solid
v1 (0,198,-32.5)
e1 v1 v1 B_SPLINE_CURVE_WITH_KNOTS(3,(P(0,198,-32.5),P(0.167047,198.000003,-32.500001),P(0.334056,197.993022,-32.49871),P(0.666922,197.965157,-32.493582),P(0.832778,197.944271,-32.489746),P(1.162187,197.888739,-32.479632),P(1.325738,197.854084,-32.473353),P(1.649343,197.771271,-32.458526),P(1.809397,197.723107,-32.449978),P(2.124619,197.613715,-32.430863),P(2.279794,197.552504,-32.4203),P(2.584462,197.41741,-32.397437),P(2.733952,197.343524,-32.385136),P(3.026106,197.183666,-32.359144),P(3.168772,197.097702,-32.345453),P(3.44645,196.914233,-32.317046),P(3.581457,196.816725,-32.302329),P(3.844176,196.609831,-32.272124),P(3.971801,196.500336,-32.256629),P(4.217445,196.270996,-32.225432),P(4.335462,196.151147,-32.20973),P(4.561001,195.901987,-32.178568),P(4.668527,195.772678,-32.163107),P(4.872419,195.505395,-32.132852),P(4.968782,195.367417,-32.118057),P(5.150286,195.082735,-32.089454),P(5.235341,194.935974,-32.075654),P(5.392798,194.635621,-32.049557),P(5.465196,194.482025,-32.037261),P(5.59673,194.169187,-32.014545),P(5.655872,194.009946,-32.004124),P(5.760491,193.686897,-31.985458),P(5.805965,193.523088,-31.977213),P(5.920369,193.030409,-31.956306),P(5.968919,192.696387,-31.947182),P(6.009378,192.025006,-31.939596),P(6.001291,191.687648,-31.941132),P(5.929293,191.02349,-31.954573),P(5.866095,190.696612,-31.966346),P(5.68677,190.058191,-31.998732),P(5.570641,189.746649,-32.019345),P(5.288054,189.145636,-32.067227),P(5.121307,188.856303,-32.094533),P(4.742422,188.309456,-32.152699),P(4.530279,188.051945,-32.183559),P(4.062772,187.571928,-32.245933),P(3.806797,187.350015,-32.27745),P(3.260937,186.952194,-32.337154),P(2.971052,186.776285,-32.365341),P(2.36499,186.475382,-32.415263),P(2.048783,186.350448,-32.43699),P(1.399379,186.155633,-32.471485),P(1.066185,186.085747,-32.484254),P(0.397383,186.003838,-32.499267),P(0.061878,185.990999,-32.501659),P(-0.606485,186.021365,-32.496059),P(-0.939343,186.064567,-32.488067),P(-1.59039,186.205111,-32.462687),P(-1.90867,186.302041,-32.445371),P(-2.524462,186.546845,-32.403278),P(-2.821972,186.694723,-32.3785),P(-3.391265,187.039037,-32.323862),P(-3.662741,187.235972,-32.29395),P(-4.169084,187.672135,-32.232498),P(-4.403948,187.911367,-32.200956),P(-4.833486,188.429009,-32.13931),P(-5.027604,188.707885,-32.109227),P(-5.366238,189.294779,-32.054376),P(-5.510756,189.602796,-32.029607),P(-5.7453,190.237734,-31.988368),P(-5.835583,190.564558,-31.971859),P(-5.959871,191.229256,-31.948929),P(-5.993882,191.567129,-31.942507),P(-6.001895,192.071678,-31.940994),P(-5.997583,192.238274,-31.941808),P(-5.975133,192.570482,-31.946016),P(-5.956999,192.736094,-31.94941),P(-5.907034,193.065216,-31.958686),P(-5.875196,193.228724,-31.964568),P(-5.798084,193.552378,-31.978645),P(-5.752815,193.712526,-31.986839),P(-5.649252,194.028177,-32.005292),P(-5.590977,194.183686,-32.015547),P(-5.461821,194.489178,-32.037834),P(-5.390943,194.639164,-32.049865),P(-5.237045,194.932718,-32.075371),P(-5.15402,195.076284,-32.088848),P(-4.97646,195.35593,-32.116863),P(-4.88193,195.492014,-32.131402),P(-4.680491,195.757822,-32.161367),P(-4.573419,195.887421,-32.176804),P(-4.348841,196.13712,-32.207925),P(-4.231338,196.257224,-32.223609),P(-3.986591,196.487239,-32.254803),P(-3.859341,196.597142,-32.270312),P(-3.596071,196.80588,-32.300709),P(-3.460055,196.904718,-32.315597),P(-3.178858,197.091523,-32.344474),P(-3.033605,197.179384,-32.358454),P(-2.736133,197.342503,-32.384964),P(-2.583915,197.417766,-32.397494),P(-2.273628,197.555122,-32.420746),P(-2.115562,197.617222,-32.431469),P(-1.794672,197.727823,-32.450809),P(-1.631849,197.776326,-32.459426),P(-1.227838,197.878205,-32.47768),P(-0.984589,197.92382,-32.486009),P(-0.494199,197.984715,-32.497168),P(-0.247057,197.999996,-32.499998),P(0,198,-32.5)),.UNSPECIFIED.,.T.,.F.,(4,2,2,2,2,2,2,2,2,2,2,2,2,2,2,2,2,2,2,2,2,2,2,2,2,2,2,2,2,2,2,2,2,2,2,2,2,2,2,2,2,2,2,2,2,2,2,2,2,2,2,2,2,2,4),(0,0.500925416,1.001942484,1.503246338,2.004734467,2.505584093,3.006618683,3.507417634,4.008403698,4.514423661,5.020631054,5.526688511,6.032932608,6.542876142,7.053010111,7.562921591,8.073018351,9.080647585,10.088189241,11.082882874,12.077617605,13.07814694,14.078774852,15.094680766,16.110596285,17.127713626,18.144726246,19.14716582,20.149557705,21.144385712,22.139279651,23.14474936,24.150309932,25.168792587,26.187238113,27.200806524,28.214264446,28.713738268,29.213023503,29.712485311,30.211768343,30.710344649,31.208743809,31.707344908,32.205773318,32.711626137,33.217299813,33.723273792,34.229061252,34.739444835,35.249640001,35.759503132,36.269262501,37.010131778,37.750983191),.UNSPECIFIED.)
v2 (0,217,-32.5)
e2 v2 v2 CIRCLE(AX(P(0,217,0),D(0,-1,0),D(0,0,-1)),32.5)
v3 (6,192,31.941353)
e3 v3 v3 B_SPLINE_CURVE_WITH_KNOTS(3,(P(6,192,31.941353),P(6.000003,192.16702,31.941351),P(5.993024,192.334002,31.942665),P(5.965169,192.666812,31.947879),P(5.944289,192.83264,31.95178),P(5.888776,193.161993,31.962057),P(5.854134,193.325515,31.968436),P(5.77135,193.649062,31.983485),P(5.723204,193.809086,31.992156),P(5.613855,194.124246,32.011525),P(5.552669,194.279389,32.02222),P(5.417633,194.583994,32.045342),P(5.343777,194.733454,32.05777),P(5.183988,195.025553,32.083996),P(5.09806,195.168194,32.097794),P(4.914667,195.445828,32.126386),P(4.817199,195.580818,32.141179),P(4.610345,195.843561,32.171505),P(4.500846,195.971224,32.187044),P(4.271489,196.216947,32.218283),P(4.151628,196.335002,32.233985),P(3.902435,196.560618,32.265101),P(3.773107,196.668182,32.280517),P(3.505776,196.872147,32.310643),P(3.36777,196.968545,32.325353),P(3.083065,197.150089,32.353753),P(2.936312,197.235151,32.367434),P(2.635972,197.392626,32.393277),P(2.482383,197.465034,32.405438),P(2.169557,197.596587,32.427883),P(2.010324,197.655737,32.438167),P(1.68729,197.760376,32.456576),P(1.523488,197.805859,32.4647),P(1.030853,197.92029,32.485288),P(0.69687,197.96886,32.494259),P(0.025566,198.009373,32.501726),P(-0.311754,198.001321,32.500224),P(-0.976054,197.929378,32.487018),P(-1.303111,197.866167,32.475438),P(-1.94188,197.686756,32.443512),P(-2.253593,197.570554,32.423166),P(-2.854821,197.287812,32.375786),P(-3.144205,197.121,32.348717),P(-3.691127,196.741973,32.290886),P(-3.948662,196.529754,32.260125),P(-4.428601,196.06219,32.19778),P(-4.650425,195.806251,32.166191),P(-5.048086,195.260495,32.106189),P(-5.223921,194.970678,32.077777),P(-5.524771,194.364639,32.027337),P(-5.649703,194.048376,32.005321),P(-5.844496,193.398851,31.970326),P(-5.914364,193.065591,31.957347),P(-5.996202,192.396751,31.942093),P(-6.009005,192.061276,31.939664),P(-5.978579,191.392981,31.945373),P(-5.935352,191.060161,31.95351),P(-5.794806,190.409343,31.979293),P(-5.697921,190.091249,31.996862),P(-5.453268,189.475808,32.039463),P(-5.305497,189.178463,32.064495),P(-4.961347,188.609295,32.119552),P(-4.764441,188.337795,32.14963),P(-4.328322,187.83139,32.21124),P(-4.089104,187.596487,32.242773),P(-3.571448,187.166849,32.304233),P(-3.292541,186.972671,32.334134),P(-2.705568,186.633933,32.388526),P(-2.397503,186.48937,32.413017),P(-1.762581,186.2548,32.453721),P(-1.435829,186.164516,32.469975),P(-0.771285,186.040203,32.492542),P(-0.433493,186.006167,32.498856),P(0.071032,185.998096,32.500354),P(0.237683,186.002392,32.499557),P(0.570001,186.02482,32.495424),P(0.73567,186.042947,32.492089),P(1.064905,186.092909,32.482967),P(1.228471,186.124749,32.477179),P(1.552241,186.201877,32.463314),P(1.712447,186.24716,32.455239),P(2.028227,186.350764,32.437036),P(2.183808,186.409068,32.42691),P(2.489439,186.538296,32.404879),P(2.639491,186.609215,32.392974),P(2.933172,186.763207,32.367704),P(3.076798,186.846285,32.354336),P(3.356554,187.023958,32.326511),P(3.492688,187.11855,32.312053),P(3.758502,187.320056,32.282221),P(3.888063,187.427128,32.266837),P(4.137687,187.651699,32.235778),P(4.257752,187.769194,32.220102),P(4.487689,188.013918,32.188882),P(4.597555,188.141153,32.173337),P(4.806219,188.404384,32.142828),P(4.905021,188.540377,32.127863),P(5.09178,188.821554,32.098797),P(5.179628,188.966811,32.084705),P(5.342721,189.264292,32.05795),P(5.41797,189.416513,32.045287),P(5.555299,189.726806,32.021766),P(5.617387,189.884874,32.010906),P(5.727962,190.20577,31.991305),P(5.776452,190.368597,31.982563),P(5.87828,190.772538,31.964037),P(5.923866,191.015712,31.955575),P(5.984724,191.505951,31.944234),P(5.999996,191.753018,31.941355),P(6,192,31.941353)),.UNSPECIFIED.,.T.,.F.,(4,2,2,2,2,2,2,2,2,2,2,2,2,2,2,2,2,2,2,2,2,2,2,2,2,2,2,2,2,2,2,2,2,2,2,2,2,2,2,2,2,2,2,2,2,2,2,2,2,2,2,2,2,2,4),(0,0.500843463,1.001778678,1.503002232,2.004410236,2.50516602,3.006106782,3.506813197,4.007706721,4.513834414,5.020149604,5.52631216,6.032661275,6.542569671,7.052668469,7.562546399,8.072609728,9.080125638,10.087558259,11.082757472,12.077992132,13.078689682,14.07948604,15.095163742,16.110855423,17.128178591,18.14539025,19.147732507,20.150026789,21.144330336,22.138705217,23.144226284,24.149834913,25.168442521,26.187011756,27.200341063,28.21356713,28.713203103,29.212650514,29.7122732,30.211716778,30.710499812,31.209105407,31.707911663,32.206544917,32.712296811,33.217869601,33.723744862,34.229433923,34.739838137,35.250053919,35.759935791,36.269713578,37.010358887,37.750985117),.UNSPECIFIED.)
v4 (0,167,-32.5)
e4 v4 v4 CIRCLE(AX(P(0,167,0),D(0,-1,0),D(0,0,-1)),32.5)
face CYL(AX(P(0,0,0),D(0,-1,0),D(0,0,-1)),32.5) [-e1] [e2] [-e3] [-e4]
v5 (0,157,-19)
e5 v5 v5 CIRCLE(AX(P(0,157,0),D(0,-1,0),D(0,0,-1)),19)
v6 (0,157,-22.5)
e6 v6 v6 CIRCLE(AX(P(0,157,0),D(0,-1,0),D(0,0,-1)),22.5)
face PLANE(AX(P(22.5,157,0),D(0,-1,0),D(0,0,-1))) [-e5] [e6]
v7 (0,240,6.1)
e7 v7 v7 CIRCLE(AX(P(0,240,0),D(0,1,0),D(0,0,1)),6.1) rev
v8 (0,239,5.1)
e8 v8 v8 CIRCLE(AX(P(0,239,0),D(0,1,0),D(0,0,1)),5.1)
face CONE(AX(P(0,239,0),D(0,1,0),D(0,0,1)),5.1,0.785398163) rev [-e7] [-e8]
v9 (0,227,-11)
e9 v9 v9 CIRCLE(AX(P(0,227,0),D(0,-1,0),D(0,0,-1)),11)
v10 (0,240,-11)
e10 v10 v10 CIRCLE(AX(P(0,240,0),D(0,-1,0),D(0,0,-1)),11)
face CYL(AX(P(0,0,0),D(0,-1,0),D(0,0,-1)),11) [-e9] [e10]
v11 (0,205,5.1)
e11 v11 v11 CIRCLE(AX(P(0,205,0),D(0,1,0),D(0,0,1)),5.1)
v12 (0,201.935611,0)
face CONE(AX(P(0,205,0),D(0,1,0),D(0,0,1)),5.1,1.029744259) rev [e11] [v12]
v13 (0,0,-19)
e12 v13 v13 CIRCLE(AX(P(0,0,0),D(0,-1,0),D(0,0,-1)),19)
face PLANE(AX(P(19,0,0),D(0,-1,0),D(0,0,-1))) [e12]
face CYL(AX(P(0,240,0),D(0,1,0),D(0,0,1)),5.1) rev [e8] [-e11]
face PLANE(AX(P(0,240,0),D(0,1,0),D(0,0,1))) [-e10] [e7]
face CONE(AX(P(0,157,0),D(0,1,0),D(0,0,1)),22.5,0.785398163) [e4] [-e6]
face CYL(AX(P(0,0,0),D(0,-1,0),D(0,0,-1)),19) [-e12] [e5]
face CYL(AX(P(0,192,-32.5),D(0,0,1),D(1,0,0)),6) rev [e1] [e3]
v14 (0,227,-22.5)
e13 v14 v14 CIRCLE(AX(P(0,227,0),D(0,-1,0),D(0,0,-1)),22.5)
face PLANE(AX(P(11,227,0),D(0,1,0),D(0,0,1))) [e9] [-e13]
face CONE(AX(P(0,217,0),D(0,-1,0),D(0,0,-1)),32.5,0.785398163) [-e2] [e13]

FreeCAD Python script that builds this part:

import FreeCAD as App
import Part
import Sketcher
Q = App.Units.Quantity


def edges_at(feature, points):
    """Names of the edges that pass closest to the given points."""
    edges = feature.Shape.Edges
    near = lambda p: min(range(len(edges)), key=lambda i: edges[i].distToShape(Part.Vertex(*p))[0])
    return sorted({f"Edge{near(p) + 1}" for p in points})


def add_polygon(sketch, points):
    """Adds a closed chain of lines whose ends are joined by coincident constraints."""
    first, n = sketch.GeometryCount, len(points)
    for a, b in zip(points, points[1:] + points[:1]):
        sketch.addGeometry(Part.LineSegment(App.Vector(*a, 0), App.Vector(*b, 0)), False)
    for i in range(n):
        sketch.addConstraint(Sketcher.Constraint("Coincident", first + i, 2, first + (i + 1) % n, 1))

doc = App.newDocument("Part")
params = doc.addObject("Spreadsheet::Sheet", "Params")
for row, (alias, value) in enumerate([
    ("sketch1_width", "19 mm"),
    ("sketch1_width2", "11 mm"),
    ("sketch1_height", "240 mm"),
    ("sketch1_height2", "157 mm"),
    ("sketch1_height3", "50 mm"),
    ("revolution_angle", "360 deg"),
    ("sketch2_diameter", "10.2 mm"),
    ("hole_diameter", "10.2 mm"),
    ("hole_depth", "35 mm"),
    ("sketch3_diameter", "12 mm"),
    ("chamfer_size", "1 mm"),
], start=1):
    params.set(f"A{row}", alias)
    params.set(f"B{row}", "=" + value)
    params.setAlias(f"B{row}", alias)

body = doc.addObject("PartDesign::Body", "Body")

# Sketch on XY plane
sketch1 = body.newObject("Sketcher::SketchObject", "Sketch")
sketch1.AttachmentSupport = (doc.getObject("XY_Plane"), [""])
sketch1.MapMode = "FlatFace"
add_polygon(sketch1, [(0, 240), (0, 0), (19, 0), (19, 157), (22.5, 157), (32.5, 167), (32.5, 217), (22.5, 227), (11, 227), (11, 240)])  # lines 0-9
sketch1.addConstraint([
    Sketcher.Constraint("Vertical", 0),
    Sketcher.Constraint("Horizontal", 1),
    Sketcher.Constraint("Vertical", 2),
    Sketcher.Constraint("Horizontal", 3),
    Sketcher.Constraint("Vertical", 5),
    Sketcher.Constraint("Horizontal", 7),
    Sketcher.Constraint("Vertical", 8),
    Sketcher.Constraint("Horizontal", 9),
    Sketcher.Constraint("Coincident", 0, 2, -1, 1),
    Sketcher.Constraint("Perpendicular", 4, 6),
    Sketcher.Constraint("Vertical", 3, 2, 6, 2),
    Sketcher.Constraint("Equal", 4, 6),
    Sketcher.Constraint("DistanceX", 1, 1, 1, 2, Q("19 mm")),
    Sketcher.Constraint("DistanceX", 9, 2, 9, 1, Q("11 mm")),
    Sketcher.Constraint("DistanceY", 0, 2, 0, 1, Q("240 mm")),
    Sketcher.Constraint("DistanceY", 2, 1, 2, 2, Q("157 mm")),
    Sketcher.Constraint("DistanceY", 5, 1, 5, 2, Q("50 mm")),
    Sketcher.Constraint("DistanceY", 8, 1, 8, 2, Q("13 mm")),
    Sketcher.Constraint("DistanceX", 3, 1, 3, 2, Q("3.5 mm")),
])
sketch1.setExpression("Constraints[22]", "Params.sketch1_width")
sketch1.setExpression("Constraints[23]", "Params.sketch1_width2")
sketch1.setExpression("Constraints[24]", "Params.sketch1_height")
sketch1.setExpression("Constraints[25]", "Params.sketch1_height2")
sketch1.setExpression("Constraints[26]", "Params.sketch1_height3")
revolution = body.newObject("PartDesign::Revolution", "Revolution")
revolution.Profile = sketch1
revolution.ReferenceAxis = (sketch1, ["V_Axis"])
revolution.setExpression("Angle", "Params.revolution_angle")

# Sketch on XZ plane
sketch2 = body.newObject("Sketcher::SketchObject", "Sketch001")
sketch2.AttachmentSupport = (doc.getObject("XZ_Plane"), [""])
sketch2.MapMode = "FlatFace"
sketch2.AttachmentOffset = App.Placement(App.Vector(0, 0, -240), App.Rotation())
sketch2.addGeometry(Part.Circle(App.Vector(0, 0, 0), App.Vector(0, 0, 1), 5), False)
sketch2.addConstraint([
    Sketcher.Constraint("Coincident", 0, 3, -1, 1),
    Sketcher.Constraint("Diameter", 0, Q("10.2 mm")),
])
sketch2.setExpression("Constraints[1]", "Params.sketch2_diameter")
doc.recompute()
hole = body.newObject("PartDesign::Hole", "Hole")
hole.Profile = sketch2
hole.ThreadType = "None"
hole.setExpression("Diameter", "Params.hole_diameter")
hole.DepthType = "Dimension"
hole.setExpression("Depth", "Params.hole_depth")
hole.DrillPoint = "Angled"
hole.DrillPointAngle = 118
hole.Reversed = True

# Sketch on XY plane
sketch3 = body.newObject("Sketcher::SketchObject", "Sketch002")
sketch3.AttachmentSupport = (doc.getObject("XY_Plane"), [""])
sketch3.MapMode = "FlatFace"
sketch3.addGeometry(Part.Circle(App.Vector(0, 192, 0), App.Vector(0, 0, 1), 6), False)
sketch3.addConstraint([
    Sketcher.Constraint("PointOnObject", 0, 3, -2),
    Sketcher.Constraint("Diameter", 0, Q("12 mm")),
    Sketcher.Constraint("DistanceY", -1, 1, 0, 3, Q("192 mm")),
])
sketch3.setExpression("Constraints[1]", "Params.sketch3_diameter")
pocket1 = body.newObject("PartDesign::Pocket", "Pocket")
pocket1.Profile = sketch3
pocket1.Type = "ThroughAll"
pocket1.Midplane = True
doc.recompute()

chamfer = body.newObject("PartDesign::Chamfer", "Chamfer")
chamfer.Base = (pocket1, edges_at(pocket1, [(0, 240, 5.1)]))
chamfer.setExpression("Size", "Params.chamfer_size")

doc.recompute()
